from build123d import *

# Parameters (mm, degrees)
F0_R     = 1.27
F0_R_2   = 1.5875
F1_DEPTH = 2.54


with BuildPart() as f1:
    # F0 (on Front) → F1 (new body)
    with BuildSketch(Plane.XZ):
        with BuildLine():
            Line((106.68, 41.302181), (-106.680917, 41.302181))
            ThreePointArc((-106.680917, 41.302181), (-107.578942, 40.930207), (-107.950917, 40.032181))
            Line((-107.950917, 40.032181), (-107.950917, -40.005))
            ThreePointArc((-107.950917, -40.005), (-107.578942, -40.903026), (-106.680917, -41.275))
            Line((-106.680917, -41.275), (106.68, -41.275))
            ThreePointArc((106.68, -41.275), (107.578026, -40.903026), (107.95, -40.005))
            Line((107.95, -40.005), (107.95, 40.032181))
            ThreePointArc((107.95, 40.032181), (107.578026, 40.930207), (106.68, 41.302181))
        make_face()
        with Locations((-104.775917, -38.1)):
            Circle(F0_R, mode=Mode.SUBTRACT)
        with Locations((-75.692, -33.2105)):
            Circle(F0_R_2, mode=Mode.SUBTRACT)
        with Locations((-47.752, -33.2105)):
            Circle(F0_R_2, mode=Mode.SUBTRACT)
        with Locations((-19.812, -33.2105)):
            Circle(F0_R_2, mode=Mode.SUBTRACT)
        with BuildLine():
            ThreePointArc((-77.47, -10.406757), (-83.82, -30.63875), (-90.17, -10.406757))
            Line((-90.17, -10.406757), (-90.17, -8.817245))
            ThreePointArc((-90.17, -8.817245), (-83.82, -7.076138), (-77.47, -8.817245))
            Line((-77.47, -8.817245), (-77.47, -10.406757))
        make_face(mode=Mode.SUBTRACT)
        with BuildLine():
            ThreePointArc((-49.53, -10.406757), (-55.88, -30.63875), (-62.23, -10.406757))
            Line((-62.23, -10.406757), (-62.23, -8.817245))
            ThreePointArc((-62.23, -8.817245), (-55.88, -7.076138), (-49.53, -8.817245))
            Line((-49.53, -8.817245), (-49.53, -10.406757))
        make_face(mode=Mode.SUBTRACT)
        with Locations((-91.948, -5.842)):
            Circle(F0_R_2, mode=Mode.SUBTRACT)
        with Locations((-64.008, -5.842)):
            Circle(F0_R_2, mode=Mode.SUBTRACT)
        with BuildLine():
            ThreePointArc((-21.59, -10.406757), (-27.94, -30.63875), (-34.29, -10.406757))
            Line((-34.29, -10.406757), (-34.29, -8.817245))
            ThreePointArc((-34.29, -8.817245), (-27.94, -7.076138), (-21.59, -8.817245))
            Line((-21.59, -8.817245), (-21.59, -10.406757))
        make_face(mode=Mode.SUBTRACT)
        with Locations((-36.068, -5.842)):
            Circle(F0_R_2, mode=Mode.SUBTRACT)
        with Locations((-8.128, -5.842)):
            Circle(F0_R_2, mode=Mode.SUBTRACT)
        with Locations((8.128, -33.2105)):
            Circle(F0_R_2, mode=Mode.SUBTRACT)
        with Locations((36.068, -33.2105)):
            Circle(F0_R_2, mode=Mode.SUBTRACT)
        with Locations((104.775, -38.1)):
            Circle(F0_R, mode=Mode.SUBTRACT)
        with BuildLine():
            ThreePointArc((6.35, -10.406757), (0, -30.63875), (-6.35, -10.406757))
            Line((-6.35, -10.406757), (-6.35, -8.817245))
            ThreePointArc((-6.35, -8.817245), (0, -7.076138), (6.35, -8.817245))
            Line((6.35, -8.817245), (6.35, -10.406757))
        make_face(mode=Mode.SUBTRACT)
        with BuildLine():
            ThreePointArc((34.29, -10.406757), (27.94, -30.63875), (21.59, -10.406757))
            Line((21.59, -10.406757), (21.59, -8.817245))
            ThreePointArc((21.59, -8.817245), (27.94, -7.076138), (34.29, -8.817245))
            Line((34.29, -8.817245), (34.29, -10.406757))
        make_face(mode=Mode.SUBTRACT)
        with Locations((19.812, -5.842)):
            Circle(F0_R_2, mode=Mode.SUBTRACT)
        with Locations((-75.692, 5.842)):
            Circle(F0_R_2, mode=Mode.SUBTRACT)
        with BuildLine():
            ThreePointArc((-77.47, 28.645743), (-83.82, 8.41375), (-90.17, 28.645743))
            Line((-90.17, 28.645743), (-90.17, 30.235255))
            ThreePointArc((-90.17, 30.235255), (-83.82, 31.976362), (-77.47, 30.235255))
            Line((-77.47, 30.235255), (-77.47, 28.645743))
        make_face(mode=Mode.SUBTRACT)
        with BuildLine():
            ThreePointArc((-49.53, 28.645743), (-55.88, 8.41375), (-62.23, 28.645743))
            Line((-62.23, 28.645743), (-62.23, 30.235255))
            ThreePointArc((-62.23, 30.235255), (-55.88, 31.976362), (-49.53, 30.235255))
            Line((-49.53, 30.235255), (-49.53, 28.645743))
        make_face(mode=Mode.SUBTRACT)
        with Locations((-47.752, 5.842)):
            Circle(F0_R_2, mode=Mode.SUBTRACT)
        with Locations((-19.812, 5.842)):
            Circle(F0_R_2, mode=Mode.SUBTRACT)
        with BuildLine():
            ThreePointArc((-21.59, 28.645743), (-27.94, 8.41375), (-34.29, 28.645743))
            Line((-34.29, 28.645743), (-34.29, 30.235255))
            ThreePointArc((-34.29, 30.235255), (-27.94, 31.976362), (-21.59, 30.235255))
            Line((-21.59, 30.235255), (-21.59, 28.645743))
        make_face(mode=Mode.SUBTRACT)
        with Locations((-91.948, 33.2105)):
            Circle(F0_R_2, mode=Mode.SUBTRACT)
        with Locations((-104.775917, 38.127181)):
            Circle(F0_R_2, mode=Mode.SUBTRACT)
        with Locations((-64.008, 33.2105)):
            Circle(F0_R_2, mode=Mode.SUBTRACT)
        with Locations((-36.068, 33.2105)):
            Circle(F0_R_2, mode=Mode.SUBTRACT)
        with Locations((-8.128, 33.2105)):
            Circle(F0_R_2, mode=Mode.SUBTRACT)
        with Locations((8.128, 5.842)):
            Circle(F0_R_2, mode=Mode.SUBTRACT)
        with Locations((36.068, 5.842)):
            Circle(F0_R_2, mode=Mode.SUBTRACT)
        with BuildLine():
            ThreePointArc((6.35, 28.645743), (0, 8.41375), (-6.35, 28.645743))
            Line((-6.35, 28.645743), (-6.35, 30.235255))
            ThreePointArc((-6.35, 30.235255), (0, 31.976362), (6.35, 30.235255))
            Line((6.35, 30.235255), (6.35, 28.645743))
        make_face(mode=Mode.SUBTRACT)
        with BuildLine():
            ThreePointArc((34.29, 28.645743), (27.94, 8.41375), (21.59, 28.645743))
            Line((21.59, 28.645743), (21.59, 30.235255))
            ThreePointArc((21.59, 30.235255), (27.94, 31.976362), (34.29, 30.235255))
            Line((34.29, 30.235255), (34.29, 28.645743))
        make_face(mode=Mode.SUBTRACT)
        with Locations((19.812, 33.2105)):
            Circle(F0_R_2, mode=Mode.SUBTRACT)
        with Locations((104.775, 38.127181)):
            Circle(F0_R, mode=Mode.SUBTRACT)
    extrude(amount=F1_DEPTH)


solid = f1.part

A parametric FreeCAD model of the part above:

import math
import FreeCAD as App
import Part
import Sketcher

V = App.Vector
Q = App.Units.Quantity

doc = App.newDocument("Part")
body = doc.addObject("PartDesign::Body", "Body")

# Sketch on XZ plane
sketch1 = body.newObject("Sketcher::SketchObject", "Sketch")
sketch1.AttachmentSupport = (doc.getObject("XZ_Plane"), [""])
sketch1.MapMode = "FlatFace"
sketch1.addGeometry([
    Part.LineSegment(V(106.68, 41.302181, 0), V(-106.680917, 41.302181, 0)),  # 0
    Part.ArcOfCircle(Part.Circle(V(-106.680917, 40.032181, 0), V(0, 0, 1), 1.27), math.radians(90.000017), math.radians(179.999983)),  # 1
    Part.LineSegment(V(-107.950917, 40.032181, 0), V(-107.950917, -40.005, 0)),  # 2
    Part.ArcOfCircle(Part.Circle(V(-106.680917, -40.005, 0), V(0, 0, 1), 1.27), math.radians(-179.999983), math.radians(-90.000017)),  # 3
    Part.LineSegment(V(-106.680917, -41.275, 0), V(106.68, -41.275, 0)),  # 4
    Part.ArcOfCircle(Part.Circle(V(106.680001, -40.005001, 0), V(0, 0, 1), 1.269999), math.radians(-90.00006), math.radians(0.00006)),  # 5
    Part.LineSegment(V(107.95, -40.005, 0), V(107.95, 40.032181, 0)),  # 6
    Part.ArcOfCircle(Part.Circle(V(106.680001, 40.032182, 0), V(0, 0, 1), 1.269999), math.radians(-0.00006), math.radians(90.00006)),  # 7
    Part.Circle(V(-104.775917, -38.1, 0), V(0, 0, 1), 1.27),  # 8
    Part.Circle(V(-75.692, -33.2105, 0), V(0, 0, 1), 1.5875),  # 9
    Part.Circle(V(-47.752, -33.2105, 0), V(0, 0, 1), 1.5875),  # 10
    Part.Circle(V(-19.812, -33.2105, 0), V(0, 0, 1), 1.5875),  # 11
    Part.LineSegment(V(-77.47, -8.817245, 0), V(-77.47, -10.406757, 0)),  # 12
    Part.ArcOfCircle(Part.Circle(V(-83.82, -19.52625, 0), V(0, 0, 1), 11.1125), math.radians(124.849905), math.radians(415.150095)),  # 13
    Part.LineSegment(V(-90.17, -10.406757, 0), V(-90.17, -8.817245, 0)),  # 14
    Part.ArcOfCircle(Part.Circle(V(-83.82, -19.52625, 0), V(0, 0, 1), 12.450112), math.radians(59.3338), math.radians(120.6662)),  # 15
    Part.LineSegment(V(-49.53, -8.817245, 0), V(-49.53, -10.406757, 0)),  # 16
    Part.ArcOfCircle(Part.Circle(V(-55.88, -19.52625, 0), V(0, 0, 1), 11.1125), math.radians(124.849905), math.radians(415.150095)),  # 17
    Part.LineSegment(V(-62.23, -10.406757, 0), V(-62.23, -8.817245, 0)),  # 18
    Part.ArcOfCircle(Part.Circle(V(-55.88, -19.52625, 0), V(0, 0, 1), 12.450112), math.radians(59.3338), math.radians(120.6662)),  # 19
    Part.Circle(V(-91.948, -5.842, 0), V(0, 0, 1), 1.5875),  # 20
    Part.Circle(V(-64.008, -5.842, 0), V(0, 0, 1), 1.5875),  # 21
    Part.LineSegment(V(-21.59, -8.817245, 0), V(-21.59, -10.406757, 0)),  # 22
    Part.ArcOfCircle(Part.Circle(V(-27.94, -19.52625, 0), V(0, 0, 1), 11.1125), math.radians(124.849905), math.radians(415.150095)),  # 23
    Part.LineSegment(V(-34.29, -10.406757, 0), V(-34.29, -8.817245, 0)),  # 24
    Part.ArcOfCircle(Part.Circle(V(-27.94, -19.52625, 0), V(0, 0, 1), 12.450112), math.radians(59.3338), math.radians(120.6662)),  # 25
    Part.Circle(V(-36.068, -5.842, 0), V(0, 0, 1), 1.5875),  # 26
    Part.Circle(V(-8.128, -5.842, 0), V(0, 0, 1), 1.5875),  # 27
    Part.Circle(V(8.128, -33.2105, 0), V(0, 0, 1), 1.5875),  # 28
    Part.Circle(V(36.068, -33.2105, 0), V(0, 0, 1), 1.5875),  # 29
    Part.Circle(V(104.775, -38.1, 0), V(0, 0, 1), 1.27),  # 30
    Part.LineSegment(V(6.35, -8.817245, 0), V(6.35, -10.406757, 0)),  # 31
    Part.ArcOfCircle(Part.Circle(V(0, -19.52625, 0), V(0, 0, 1), 11.1125), math.radians(124.849905), math.radians(415.150095)),  # 32
    Part.LineSegment(V(-6.35, -10.406757, 0), V(-6.35, -8.817245, 0)),  # 33
    Part.ArcOfCircle(Part.Circle(V(0, -19.52625, 0), V(0, 0, 1), 12.450112), math.radians(59.3338), math.radians(120.6662)),  # 34
    Part.LineSegment(V(34.29, -8.817245, 0), V(34.29, -10.406757, 0)),  # 35
    Part.ArcOfCircle(Part.Circle(V(27.94, -19.52625, 0), V(0, 0, 1), 11.1125), math.radians(124.849905), math.radians(415.150095)),  # 36
    Part.LineSegment(V(21.59, -10.406757, 0), V(21.59, -8.817245, 0)),  # 37
    Part.ArcOfCircle(Part.Circle(V(27.94, -19.52625, 0), V(0, 0, 1), 12.450112), math.radians(59.3338), math.radians(120.6662)),  # 38
    Part.Circle(V(19.812, -5.842, 0), V(0, 0, 1), 1.5875),  # 39
    Part.Circle(V(-75.692, 5.842, 0), V(0, 0, 1), 1.5875),  # 40
    Part.Circle(V(-47.752, 5.842, 0), V(0, 0, 1), 1.5875),  # 41
    Part.Circle(V(-19.812, 5.842, 0), V(0, 0, 1), 1.5875),  # 42
    Part.LineSegment(V(-77.47, 30.235255, 0), V(-77.47, 28.645743, 0)),  # 43
    Part.ArcOfCircle(Part.Circle(V(-83.82, 19.52625, 0), V(0, 0, 1), 11.1125), math.radians(124.849905), math.radians(415.150095)),  # 44
    Part.LineSegment(V(-90.17, 28.645743, 0), V(-90.17, 30.235255, 0)),  # 45
    Part.ArcOfCircle(Part.Circle(V(-83.82, 19.52625, 0), V(0, 0, 1), 12.450112), math.radians(59.3338), math.radians(120.6662)),  # 46
    Part.LineSegment(V(-49.53, 30.235255, 0), V(-49.53, 28.645743, 0)),  # 47
    Part.ArcOfCircle(Part.Circle(V(-55.88, 19.52625, 0), V(0, 0, 1), 11.1125), math.radians(124.849905), math.radians(415.150095)),  # 48
    Part.LineSegment(V(-62.23, 28.645743, 0), V(-62.23, 30.235255, 0)),  # 49
    Part.ArcOfCircle(Part.Circle(V(-55.88, 19.52625, 0), V(0, 0, 1), 12.450112), math.radians(59.3338), math.radians(120.6662)),  # 50
    Part.Circle(V(-91.948, 33.2105, 0), V(0, 0, 1), 1.5875),  # 51
    Part.Circle(V(-104.775917, 38.127181, 0), V(0, 0, 1), 1.5875),  # 52
    Part.Circle(V(-64.008, 33.2105, 0), V(0, 0, 1), 1.5875),  # 53
    Part.LineSegment(V(-21.59, 30.235255, 0), V(-21.59, 28.645743, 0)),  # 54
    Part.ArcOfCircle(Part.Circle(V(-27.94, 19.52625, 0), V(0, 0, 1), 11.1125), math.radians(124.849905), math.radians(415.150095)),  # 55
    Part.LineSegment(V(-34.29, 28.645743, 0), V(-34.29, 30.235255, 0)),  # 56
    Part.ArcOfCircle(Part.Circle(V(-27.94, 19.52625, 0), V(0, 0, 1), 12.450112), math.radians(59.3338), math.radians(120.6662)),  # 57
    Part.Circle(V(-36.068, 33.2105, 0), V(0, 0, 1), 1.5875),  # 58
    Part.Circle(V(-8.128, 33.2105, 0), V(0, 0, 1), 1.5875),  # 59
    Part.Circle(V(8.128, 5.842, 0), V(0, 0, 1), 1.5875),  # 60
    Part.Circle(V(36.068, 5.842, 0), V(0, 0, 1), 1.5875),  # 61
    Part.LineSegment(V(6.35, 30.235255, 0), V(6.35, 28.645743, 0)),  # 62
    Part.ArcOfCircle(Part.Circle(V(0, 19.52625, 0), V(0, 0, 1), 11.1125), math.radians(124.849905), math.radians(415.150095)),  # 63
    Part.LineSegment(V(-6.35, 28.645743, 0), V(-6.35, 30.235255, 0)),  # 64
    Part.ArcOfCircle(Part.Circle(V(0, 19.52625, 0), V(0, 0, 1), 12.450112), math.radians(59.3338), math.radians(120.6662)),  # 65
    Part.LineSegment(V(34.29, 30.235255, 0), V(34.29, 28.645743, 0)),  # 66
    Part.ArcOfCircle(Part.Circle(V(27.94, 19.52625, 0), V(0, 0, 1), 11.1125), math.radians(124.849905), math.radians(415.150095)),  # 67
    Part.LineSegment(V(21.59, 28.645743, 0), V(21.59, 30.235255, 0)),  # 68
    Part.ArcOfCircle(Part.Circle(V(27.94, 19.52625, 0), V(0, 0, 1), 12.450112), math.radians(59.3338), math.radians(120.6662)),  # 69
    Part.Circle(V(19.812, 33.2105, 0), V(0, 0, 1), 1.5875),  # 70
    Part.Circle(V(104.775, 38.127181, 0), V(0, 0, 1), 1.27),  # 71
], False)
sketch1.addConstraint([
    Sketcher.Constraint("Tangent", 0, 2, 1, 1),
    Sketcher.Constraint("Tangent", 1, 2, 2, 1),
    Sketcher.Constraint("Tangent", 2, 2, 3, 1),
    Sketcher.Constraint("Tangent", 3, 2, 4, 1),
    Sketcher.Constraint("Tangent", 4, 2, 5, 1),
    Sketcher.Constraint("Tangent", 5, 2, 6, 1),
    Sketcher.Constraint("Tangent", 6, 2, 7, 1),
    Sketcher.Constraint("Tangent", 7, 2, 0, 1),
    Sketcher.Constraint("Coincident", 12, 2, 13, 2),
    Sketcher.Constraint("Coincident", 13, 1, 14, 1),
    Sketcher.Constraint("Coincident", 14, 2, 15, 2),
    Sketcher.Constraint("Coincident", 15, 1, 12, 1),
    Sketcher.Constraint("Coincident", 16, 2, 17, 2),
    Sketcher.Constraint("Coincident", 17, 1, 18, 1),
    Sketcher.Constraint("Coincident", 18, 2, 19, 2),
    Sketcher.Constraint("Coincident", 19, 1, 16, 1),
    Sketcher.Constraint("Coincident", 22, 2, 23, 2),
    Sketcher.Constraint("Coincident", 23, 1, 24, 1),
    Sketcher.Constraint("Coincident", 24, 2, 25, 2),
    Sketcher.Constraint("Coincident", 25, 1, 22, 1),
    Sketcher.Constraint("Coincident", 31, 2, 32, 2),
    Sketcher.Constraint("Coincident", 32, 1, 33, 1),
    Sketcher.Constraint("Coincident", 33, 2, 34, 2),
    Sketcher.Constraint("Coincident", 34, 1, 31, 1),
    Sketcher.Constraint("Coincident", 35, 2, 36, 2),
    Sketcher.Constraint("Coincident", 36, 1, 37, 1),
    Sketcher.Constraint("Coincident", 37, 2, 38, 2),
    Sketcher.Constraint("Coincident", 38, 1, 35, 1),
    Sketcher.Constraint("Coincident", 43, 2, 44, 2),
    Sketcher.Constraint("Coincident", 44, 1, 45, 1),
    Sketcher.Constraint("Coincident", 45, 2, 46, 2),
    Sketcher.Constraint("Coincident", 46, 1, 43, 1),
    Sketcher.Constraint("Coincident", 47, 2, 48, 2),
    Sketcher.Constraint("Coincident", 48, 1, 49, 1),
    Sketcher.Constraint("Coincident", 49, 2, 50, 2),
    Sketcher.Constraint("Coincident", 50, 1, 47, 1),
    Sketcher.Constraint("Coincident", 54, 2, 55, 2),
    Sketcher.Constraint("Coincident", 55, 1, 56, 1),
    Sketcher.Constraint("Coincident", 56, 2, 57, 2),
    Sketcher.Constraint("Coincident", 57, 1, 54, 1),
    Sketcher.Constraint("Coincident", 62, 2, 63, 2),
    Sketcher.Constraint("Coincident", 63, 1, 64, 1),
    Sketcher.Constraint("Coincident", 64, 2, 65, 2),
    Sketcher.Constraint("Coincident", 65, 1, 62, 1),
    Sketcher.Constraint("Coincident", 66, 2, 67, 2),
    Sketcher.Constraint("Coincident", 67, 1, 68, 1),
    Sketcher.Constraint("Coincident", 68, 2, 69, 2),
    Sketcher.Constraint("Coincident", 69, 1, 66, 1),
    Sketcher.Constraint("Horizontal", 0),
    Sketcher.Constraint("Vertical", 2),
    Sketcher.Constraint("Horizontal", 4),
    Sketcher.Constraint("Vertical", 6),
    Sketcher.Constraint("Vertical", 12),
    Sketcher.Constraint("Vertical", 14),
    Sketcher.Constraint("Vertical", 16),
    Sketcher.Constraint("Vertical", 18),
    Sketcher.Constraint("Vertical", 22),
    Sketcher.Constraint("Vertical", 24),
    Sketcher.Constraint("Vertical", 31),
    Sketcher.Constraint("Vertical", 33),
    Sketcher.Constraint("Vertical", 35),
    Sketcher.Constraint("Vertical", 37),
    Sketcher.Constraint("Vertical", 43),
    Sketcher.Constraint("Vertical", 45),
    Sketcher.Constraint("Vertical", 47),
    Sketcher.Constraint("Vertical", 49),
    Sketcher.Constraint("Vertical", 54),
    Sketcher.Constraint("Vertical", 56),
    Sketcher.Constraint("Vertical", 62),
    Sketcher.Constraint("Vertical", 64),
    Sketcher.Constraint("Vertical", 66),
    Sketcher.Constraint("Vertical", 68),
    Sketcher.Constraint("Coincident", 15, 3, 13, 3),
    Sketcher.Constraint("Coincident", 19, 3, 17, 3),
    Sketcher.Constraint("Coincident", 25, 3, 23, 3),
    Sketcher.Constraint("Coincident", 34, 3, 32, 3),
    Sketcher.Constraint("Coincident", 38, 3, 36, 3),
    Sketcher.Constraint("Coincident", 46, 3, 44, 3),
    Sketcher.Constraint("Coincident", 50, 3, 48, 3),
    Sketcher.Constraint("Coincident", 57, 3, 55, 3),
    Sketcher.Constraint("Coincident", 65, 3, 63, 3),
    Sketcher.Constraint("Coincident", 69, 3, 67, 3),
    Sketcher.Constraint("Equal", 1, 3),
    Sketcher.Constraint("Equal", 3, 5),
    Sketcher.Constraint("Equal", 5, 7),
    Sketcher.Constraint("Equal", 7, 8),
    Sketcher.Constraint("Equal", 9, 10),
    Sketcher.Constraint("Equal", 10, 11),
    Sketcher.Constraint("Equal", 13, 17),
    Sketcher.Constraint("Equal", 15, 19),
    Sketcher.Constraint("Equal", 11, 20),
    Sketcher.Constraint("Equal", 20, 21),
    Sketcher.Constraint("Equal", 17, 23),
    Sketcher.Constraint("Equal", 19, 25),
    Sketcher.Constraint("Equal", 21, 26),
    Sketcher.Constraint("Equal", 26, 27),
    Sketcher.Constraint("Equal", 27, 28),
    Sketcher.Constraint("Equal", 28, 29),
    Sketcher.Constraint("Equal", 8, 30),
    Sketcher.Constraint("Equal", 23, 32),
    Sketcher.Constraint("Equal", 25, 34),
    Sketcher.Constraint("Equal", 32, 36),
    Sketcher.Constraint("Equal", 34, 38),
    Sketcher.Constraint("Equal", 29, 39),
    Sketcher.Constraint("Equal", 39, 40),
    Sketcher.Constraint("Equal", 40, 41),
    Sketcher.Constraint("Equal", 41, 42),
    Sketcher.Constraint("Equal", 36, 44),
    Sketcher.Constraint("Equal", 38, 46),
    Sketcher.Constraint("Equal", 44, 48),
    Sketcher.Constraint("Equal", 46, 50),
    Sketcher.Constraint("Equal", 42, 51),
    Sketcher.Constraint("Equal", 51, 52),
    Sketcher.Constraint("Equal", 52, 53),
    Sketcher.Constraint("Equal", 48, 55),
    Sketcher.Constraint("Equal", 50, 57),
    Sketcher.Constraint("Equal", 53, 58),
    Sketcher.Constraint("Equal", 58, 59),
    Sketcher.Constraint("Equal", 59, 60),
    Sketcher.Constraint("Equal", 60, 61),
    Sketcher.Constraint("Equal", 55, 63),
    Sketcher.Constraint("Equal", 57, 65),
    Sketcher.Constraint("Equal", 63, 67),
    Sketcher.Constraint("Equal", 65, 69),
    Sketcher.Constraint("Equal", 61, 70),
    Sketcher.Constraint("Equal", 30, 71),
    Sketcher.Constraint("Symmetric", 39, 3, 42, 3, -1, 1),
    Sketcher.Constraint("Symmetric", 36, 3, 55, 3, -1, 1),
    Sketcher.Constraint("Symmetric", 29, 3, 58, 3, -1, 1),
    Sketcher.Constraint("Symmetric", 28, 3, 59, 3, -1, 1),
    Sketcher.Constraint("Symmetric", 27, 3, 60, 3, -1, 1),
    Sketcher.Constraint("Symmetric", 26, 3, 61, 3, -1, 1),
    Sketcher.Constraint("Symmetric", 32, 3, 63, 3, -1, 1),
    Sketcher.Constraint("Symmetric", 23, 3, 67, 3, -1, 1),
    Sketcher.Constraint("Symmetric", 11, 3, 70, 3, -1, 1),
    Sketcher.Constraint("Symmetric", 23, 3, 36, 3, -2),
    Sketcher.Constraint("Symmetric", 31, 2, 32, 1, -2),
    Sketcher.Constraint("Symmetric", 13, 3, 44, 3, -1),
    Sketcher.Constraint("Symmetric", 17, 3, 48, 3, -1),
    Sketcher.Constraint("Horizontal", 9, 3, 10, 3),
    Sketcher.Constraint("Horizontal", 10, 3, 11, 3),
    Sketcher.Constraint("Horizontal", 15, 3, 17, 3),
    Sketcher.Constraint("Horizontal", 20, 3, 21, 3),
    Sketcher.Constraint("Horizontal", 19, 3, 23, 3),
    Sketcher.Constraint("Horizontal", 21, 3, 26, 3),
    Sketcher.Constraint("Horizontal", 26, 3, 27, 3),
    Sketcher.Constraint("Horizontal", 11, 3, 28, 3),
    Sketcher.Constraint("Horizontal", 28, 3, 29, 3),
    Sketcher.Constraint("Horizontal", 8, 3, 30, 3),
    Sketcher.Constraint("Horizontal", 25, 3, 32, 3),
    Sketcher.Constraint("Horizontal", 27, 3, 39, 3),
    Sketcher.Constraint("Horizontal", 40, 3, 41, 3),
    Sketcher.Constraint("Horizontal", 41, 3, 42, 3),
    Sketcher.Constraint("Horizontal", 51, 3, 53, 3),
    Sketcher.Constraint("Horizontal", 53, 3, 58, 3),
    Sketcher.Constraint("Horizontal", 52, 3, 71, 3),
    Sketcher.Constraint("Horizontal", 12, 2, 13, 1),
    Sketcher.Constraint("Horizontal", 13, 1, 16, 2),
    Sketcher.Constraint("Horizontal", 16, 2, 17, 1),
    Sketcher.Constraint("Horizontal", 17, 1, 22, 2),
    Sketcher.Constraint("Horizontal", 22, 2, 23, 1),
    Sketcher.Constraint("Horizontal", 23, 1, 31, 2),
    Sketcher.Constraint("Horizontal", 32, 1, 35, 2),
    Sketcher.Constraint("Horizontal", 35, 2, 36, 1),
    Sketcher.Constraint("Horizontal", 43, 2, 44, 1),
    Sketcher.Constraint("Horizontal", 44, 1, 47, 2),
    Sketcher.Constraint("Horizontal", 47, 2, 48, 1),
    Sketcher.Constraint("Horizontal", 48, 1, 54, 2),
    Sketcher.Constraint("Horizontal", 54, 2, 55, 1),
    Sketcher.Constraint("Horizontal", 55, 1, 62, 2),
    Sketcher.Constraint("Horizontal", 62, 2, 63, 1),
    Sketcher.Constraint("Horizontal", 63, 1, 66, 2),
    Sketcher.Constraint("Horizontal", 66, 2, 67, 1),
    Sketcher.Constraint("Vertical", 9, 3, 40, 3),
    Sketcher.Constraint("Vertical", 10, 3, 41, 3),
    Sketcher.Constraint("Vertical", 11, 3, 42, 3),
    Sketcher.Constraint("Vertical", 20, 3, 51, 3),
    Sketcher.Constraint("Vertical", 8, 3, 52, 3),
    Sketcher.Constraint("Vertical", 21, 3, 53, 3),
    Sketcher.Constraint("Vertical", 26, 3, 58, 3),
    Sketcher.Constraint("Vertical", 27, 3, 59, 3),
    Sketcher.Constraint("Vertical", 30, 3, 71, 3),
    Sketcher.Constraint("Vertical", 15, 1, 43, 2),
    Sketcher.Constraint("Diameter", 8, Q("0.1 in")),
    Sketcher.Constraint("Diameter", 9, Q("0.125 in")),
    Sketcher.Constraint("Radius", 13, Q("0.4375 in")),
    Sketcher.Constraint("DistanceX", -1, 1, 5, 3, Q("4.2000001 in")),
    Sketcher.Constraint("DistanceY", 8, 3, -1, 1, Q("1.5 in")),
    Sketcher.Constraint("DistanceX", 13, 3, -1, 1, Q("3.3 in")),
    Sketcher.Constraint("DistanceX", 17, 3, -1, 1, Q("2.2 in")),
    Sketcher.Constraint("DistanceX", 23, 3, -1, 1, Q("1.1 in")),
    Sketcher.Constraint("DistanceX", 9, 3, -1, 1, Q("2.98 in")),
    Sketcher.Constraint("DistanceX", 10, 3, -1, 1, Q("1.88 in")),
    Sketcher.Constraint("DistanceX", 11, 3, -1, 1, Q("0.78 in")),
    Sketcher.Constraint("DistanceX", 20, 3, -1, 1, Q("3.62 in")),
    Sketcher.Constraint("DistanceY", 20, 3, -1, 1, Q("0.23 in")),
    Sketcher.Constraint("DistanceX", 21, 3, -1, 1, Q("2.52 in")),
    Sketcher.Constraint("DistanceX", 26, 3, -1, 1, Q("1.42 in")),
    Sketcher.Constraint("DistanceX", 27, 3, -1, 1, Q("0.32 in")),
    Sketcher.Constraint("DistanceX", 12, 2, -1, 1, Q("3.05 in")),
    Sketcher.Constraint("DistanceY", 3, 3, -1, 1, Q("1.575 in")),
    Sketcher.Constraint("DistanceX", -1, 1, 30, 3, Q("4.125 in")),
    Sketcher.Constraint("Radius", 15, 12.450112),
    Sketcher.Constraint("DistanceY", 9, 3, -1, 1, Q("1.3075 in")),
    Sketcher.Constraint("DistanceY", 2, 2, 2, 1, 80.037181),
    Sketcher.Constraint("DistanceX", 0, 2, 0, 1, 213.360917),
    Sketcher.Constraint("DistanceY", 13, 3, -1, 1, 19.52625),
    Sketcher.Constraint("DistanceY", -1, 1, 52, 3, 38.127181),
    Sketcher.Constraint("DistanceX", 8, 3, -1, 1, 104.775917),
])
pad1 = body.newObject("PartDesign::Pad", "Pad")
pad1.Profile = sketch1
pad1.Length = Q("0.1 in")

doc.recompute()
